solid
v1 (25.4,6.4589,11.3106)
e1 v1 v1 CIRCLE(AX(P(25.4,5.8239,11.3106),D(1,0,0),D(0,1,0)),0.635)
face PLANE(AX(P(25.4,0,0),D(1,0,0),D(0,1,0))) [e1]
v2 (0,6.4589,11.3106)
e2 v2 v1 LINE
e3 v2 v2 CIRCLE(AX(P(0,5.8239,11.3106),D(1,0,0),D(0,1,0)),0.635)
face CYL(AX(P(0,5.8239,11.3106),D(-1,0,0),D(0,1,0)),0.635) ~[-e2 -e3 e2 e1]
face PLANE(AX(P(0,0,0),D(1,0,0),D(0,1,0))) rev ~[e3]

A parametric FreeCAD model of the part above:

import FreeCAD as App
import Part
import Sketcher
from FreeCAD import Vector
Q = App.Units.Quantity

doc = App.newDocument("Part")
params = doc.addObject("Spreadsheet::Sheet", "Params")
for row, (alias, value) in enumerate([
    ("sketch1_diameter", "0.05 in"),
    ("pad1_length", "1 in"),
], start=1):
    params.set(f"A{row}", alias)
    params.set(f"B{row}", "=" + value)
    params.setAlias(f"B{row}", alias)

body = doc.addObject("PartDesign::Body", "Body")

# Sketch on YZ plane
sketch1 = body.newObject("Sketcher::SketchObject", "Sketch")
sketch1.AttachmentSupport = (doc.getObject("YZ_Plane"), [""])
sketch1.MapMode = "FlatFace"
sketch1.addGeometry(Part.Circle(Vector(5.8, 11.3, 0), Vector(0, 0, 1), 0.6), False)
sketch1.addConstraint(Sketcher.Constraint("Diameter", 0, Q("0.05 in")))
sketch1.addConstraint(Sketcher.Constraint("DistanceY", -1, 1, 0, 3, Q("0.4453 in")))
sketch1.addConstraint(Sketcher.Constraint("DistanceX", -1, 1, 0, 3, Q("0.2292913 in")))
sketch1.setExpression("Constraints[0]", "Params.sketch1_diameter")
pad1 = body.newObject("PartDesign::Pad", "Pad")
pad1.Profile = sketch1
pad1.setExpression("Length", "Params.pad1_length")

doc.recompute()
